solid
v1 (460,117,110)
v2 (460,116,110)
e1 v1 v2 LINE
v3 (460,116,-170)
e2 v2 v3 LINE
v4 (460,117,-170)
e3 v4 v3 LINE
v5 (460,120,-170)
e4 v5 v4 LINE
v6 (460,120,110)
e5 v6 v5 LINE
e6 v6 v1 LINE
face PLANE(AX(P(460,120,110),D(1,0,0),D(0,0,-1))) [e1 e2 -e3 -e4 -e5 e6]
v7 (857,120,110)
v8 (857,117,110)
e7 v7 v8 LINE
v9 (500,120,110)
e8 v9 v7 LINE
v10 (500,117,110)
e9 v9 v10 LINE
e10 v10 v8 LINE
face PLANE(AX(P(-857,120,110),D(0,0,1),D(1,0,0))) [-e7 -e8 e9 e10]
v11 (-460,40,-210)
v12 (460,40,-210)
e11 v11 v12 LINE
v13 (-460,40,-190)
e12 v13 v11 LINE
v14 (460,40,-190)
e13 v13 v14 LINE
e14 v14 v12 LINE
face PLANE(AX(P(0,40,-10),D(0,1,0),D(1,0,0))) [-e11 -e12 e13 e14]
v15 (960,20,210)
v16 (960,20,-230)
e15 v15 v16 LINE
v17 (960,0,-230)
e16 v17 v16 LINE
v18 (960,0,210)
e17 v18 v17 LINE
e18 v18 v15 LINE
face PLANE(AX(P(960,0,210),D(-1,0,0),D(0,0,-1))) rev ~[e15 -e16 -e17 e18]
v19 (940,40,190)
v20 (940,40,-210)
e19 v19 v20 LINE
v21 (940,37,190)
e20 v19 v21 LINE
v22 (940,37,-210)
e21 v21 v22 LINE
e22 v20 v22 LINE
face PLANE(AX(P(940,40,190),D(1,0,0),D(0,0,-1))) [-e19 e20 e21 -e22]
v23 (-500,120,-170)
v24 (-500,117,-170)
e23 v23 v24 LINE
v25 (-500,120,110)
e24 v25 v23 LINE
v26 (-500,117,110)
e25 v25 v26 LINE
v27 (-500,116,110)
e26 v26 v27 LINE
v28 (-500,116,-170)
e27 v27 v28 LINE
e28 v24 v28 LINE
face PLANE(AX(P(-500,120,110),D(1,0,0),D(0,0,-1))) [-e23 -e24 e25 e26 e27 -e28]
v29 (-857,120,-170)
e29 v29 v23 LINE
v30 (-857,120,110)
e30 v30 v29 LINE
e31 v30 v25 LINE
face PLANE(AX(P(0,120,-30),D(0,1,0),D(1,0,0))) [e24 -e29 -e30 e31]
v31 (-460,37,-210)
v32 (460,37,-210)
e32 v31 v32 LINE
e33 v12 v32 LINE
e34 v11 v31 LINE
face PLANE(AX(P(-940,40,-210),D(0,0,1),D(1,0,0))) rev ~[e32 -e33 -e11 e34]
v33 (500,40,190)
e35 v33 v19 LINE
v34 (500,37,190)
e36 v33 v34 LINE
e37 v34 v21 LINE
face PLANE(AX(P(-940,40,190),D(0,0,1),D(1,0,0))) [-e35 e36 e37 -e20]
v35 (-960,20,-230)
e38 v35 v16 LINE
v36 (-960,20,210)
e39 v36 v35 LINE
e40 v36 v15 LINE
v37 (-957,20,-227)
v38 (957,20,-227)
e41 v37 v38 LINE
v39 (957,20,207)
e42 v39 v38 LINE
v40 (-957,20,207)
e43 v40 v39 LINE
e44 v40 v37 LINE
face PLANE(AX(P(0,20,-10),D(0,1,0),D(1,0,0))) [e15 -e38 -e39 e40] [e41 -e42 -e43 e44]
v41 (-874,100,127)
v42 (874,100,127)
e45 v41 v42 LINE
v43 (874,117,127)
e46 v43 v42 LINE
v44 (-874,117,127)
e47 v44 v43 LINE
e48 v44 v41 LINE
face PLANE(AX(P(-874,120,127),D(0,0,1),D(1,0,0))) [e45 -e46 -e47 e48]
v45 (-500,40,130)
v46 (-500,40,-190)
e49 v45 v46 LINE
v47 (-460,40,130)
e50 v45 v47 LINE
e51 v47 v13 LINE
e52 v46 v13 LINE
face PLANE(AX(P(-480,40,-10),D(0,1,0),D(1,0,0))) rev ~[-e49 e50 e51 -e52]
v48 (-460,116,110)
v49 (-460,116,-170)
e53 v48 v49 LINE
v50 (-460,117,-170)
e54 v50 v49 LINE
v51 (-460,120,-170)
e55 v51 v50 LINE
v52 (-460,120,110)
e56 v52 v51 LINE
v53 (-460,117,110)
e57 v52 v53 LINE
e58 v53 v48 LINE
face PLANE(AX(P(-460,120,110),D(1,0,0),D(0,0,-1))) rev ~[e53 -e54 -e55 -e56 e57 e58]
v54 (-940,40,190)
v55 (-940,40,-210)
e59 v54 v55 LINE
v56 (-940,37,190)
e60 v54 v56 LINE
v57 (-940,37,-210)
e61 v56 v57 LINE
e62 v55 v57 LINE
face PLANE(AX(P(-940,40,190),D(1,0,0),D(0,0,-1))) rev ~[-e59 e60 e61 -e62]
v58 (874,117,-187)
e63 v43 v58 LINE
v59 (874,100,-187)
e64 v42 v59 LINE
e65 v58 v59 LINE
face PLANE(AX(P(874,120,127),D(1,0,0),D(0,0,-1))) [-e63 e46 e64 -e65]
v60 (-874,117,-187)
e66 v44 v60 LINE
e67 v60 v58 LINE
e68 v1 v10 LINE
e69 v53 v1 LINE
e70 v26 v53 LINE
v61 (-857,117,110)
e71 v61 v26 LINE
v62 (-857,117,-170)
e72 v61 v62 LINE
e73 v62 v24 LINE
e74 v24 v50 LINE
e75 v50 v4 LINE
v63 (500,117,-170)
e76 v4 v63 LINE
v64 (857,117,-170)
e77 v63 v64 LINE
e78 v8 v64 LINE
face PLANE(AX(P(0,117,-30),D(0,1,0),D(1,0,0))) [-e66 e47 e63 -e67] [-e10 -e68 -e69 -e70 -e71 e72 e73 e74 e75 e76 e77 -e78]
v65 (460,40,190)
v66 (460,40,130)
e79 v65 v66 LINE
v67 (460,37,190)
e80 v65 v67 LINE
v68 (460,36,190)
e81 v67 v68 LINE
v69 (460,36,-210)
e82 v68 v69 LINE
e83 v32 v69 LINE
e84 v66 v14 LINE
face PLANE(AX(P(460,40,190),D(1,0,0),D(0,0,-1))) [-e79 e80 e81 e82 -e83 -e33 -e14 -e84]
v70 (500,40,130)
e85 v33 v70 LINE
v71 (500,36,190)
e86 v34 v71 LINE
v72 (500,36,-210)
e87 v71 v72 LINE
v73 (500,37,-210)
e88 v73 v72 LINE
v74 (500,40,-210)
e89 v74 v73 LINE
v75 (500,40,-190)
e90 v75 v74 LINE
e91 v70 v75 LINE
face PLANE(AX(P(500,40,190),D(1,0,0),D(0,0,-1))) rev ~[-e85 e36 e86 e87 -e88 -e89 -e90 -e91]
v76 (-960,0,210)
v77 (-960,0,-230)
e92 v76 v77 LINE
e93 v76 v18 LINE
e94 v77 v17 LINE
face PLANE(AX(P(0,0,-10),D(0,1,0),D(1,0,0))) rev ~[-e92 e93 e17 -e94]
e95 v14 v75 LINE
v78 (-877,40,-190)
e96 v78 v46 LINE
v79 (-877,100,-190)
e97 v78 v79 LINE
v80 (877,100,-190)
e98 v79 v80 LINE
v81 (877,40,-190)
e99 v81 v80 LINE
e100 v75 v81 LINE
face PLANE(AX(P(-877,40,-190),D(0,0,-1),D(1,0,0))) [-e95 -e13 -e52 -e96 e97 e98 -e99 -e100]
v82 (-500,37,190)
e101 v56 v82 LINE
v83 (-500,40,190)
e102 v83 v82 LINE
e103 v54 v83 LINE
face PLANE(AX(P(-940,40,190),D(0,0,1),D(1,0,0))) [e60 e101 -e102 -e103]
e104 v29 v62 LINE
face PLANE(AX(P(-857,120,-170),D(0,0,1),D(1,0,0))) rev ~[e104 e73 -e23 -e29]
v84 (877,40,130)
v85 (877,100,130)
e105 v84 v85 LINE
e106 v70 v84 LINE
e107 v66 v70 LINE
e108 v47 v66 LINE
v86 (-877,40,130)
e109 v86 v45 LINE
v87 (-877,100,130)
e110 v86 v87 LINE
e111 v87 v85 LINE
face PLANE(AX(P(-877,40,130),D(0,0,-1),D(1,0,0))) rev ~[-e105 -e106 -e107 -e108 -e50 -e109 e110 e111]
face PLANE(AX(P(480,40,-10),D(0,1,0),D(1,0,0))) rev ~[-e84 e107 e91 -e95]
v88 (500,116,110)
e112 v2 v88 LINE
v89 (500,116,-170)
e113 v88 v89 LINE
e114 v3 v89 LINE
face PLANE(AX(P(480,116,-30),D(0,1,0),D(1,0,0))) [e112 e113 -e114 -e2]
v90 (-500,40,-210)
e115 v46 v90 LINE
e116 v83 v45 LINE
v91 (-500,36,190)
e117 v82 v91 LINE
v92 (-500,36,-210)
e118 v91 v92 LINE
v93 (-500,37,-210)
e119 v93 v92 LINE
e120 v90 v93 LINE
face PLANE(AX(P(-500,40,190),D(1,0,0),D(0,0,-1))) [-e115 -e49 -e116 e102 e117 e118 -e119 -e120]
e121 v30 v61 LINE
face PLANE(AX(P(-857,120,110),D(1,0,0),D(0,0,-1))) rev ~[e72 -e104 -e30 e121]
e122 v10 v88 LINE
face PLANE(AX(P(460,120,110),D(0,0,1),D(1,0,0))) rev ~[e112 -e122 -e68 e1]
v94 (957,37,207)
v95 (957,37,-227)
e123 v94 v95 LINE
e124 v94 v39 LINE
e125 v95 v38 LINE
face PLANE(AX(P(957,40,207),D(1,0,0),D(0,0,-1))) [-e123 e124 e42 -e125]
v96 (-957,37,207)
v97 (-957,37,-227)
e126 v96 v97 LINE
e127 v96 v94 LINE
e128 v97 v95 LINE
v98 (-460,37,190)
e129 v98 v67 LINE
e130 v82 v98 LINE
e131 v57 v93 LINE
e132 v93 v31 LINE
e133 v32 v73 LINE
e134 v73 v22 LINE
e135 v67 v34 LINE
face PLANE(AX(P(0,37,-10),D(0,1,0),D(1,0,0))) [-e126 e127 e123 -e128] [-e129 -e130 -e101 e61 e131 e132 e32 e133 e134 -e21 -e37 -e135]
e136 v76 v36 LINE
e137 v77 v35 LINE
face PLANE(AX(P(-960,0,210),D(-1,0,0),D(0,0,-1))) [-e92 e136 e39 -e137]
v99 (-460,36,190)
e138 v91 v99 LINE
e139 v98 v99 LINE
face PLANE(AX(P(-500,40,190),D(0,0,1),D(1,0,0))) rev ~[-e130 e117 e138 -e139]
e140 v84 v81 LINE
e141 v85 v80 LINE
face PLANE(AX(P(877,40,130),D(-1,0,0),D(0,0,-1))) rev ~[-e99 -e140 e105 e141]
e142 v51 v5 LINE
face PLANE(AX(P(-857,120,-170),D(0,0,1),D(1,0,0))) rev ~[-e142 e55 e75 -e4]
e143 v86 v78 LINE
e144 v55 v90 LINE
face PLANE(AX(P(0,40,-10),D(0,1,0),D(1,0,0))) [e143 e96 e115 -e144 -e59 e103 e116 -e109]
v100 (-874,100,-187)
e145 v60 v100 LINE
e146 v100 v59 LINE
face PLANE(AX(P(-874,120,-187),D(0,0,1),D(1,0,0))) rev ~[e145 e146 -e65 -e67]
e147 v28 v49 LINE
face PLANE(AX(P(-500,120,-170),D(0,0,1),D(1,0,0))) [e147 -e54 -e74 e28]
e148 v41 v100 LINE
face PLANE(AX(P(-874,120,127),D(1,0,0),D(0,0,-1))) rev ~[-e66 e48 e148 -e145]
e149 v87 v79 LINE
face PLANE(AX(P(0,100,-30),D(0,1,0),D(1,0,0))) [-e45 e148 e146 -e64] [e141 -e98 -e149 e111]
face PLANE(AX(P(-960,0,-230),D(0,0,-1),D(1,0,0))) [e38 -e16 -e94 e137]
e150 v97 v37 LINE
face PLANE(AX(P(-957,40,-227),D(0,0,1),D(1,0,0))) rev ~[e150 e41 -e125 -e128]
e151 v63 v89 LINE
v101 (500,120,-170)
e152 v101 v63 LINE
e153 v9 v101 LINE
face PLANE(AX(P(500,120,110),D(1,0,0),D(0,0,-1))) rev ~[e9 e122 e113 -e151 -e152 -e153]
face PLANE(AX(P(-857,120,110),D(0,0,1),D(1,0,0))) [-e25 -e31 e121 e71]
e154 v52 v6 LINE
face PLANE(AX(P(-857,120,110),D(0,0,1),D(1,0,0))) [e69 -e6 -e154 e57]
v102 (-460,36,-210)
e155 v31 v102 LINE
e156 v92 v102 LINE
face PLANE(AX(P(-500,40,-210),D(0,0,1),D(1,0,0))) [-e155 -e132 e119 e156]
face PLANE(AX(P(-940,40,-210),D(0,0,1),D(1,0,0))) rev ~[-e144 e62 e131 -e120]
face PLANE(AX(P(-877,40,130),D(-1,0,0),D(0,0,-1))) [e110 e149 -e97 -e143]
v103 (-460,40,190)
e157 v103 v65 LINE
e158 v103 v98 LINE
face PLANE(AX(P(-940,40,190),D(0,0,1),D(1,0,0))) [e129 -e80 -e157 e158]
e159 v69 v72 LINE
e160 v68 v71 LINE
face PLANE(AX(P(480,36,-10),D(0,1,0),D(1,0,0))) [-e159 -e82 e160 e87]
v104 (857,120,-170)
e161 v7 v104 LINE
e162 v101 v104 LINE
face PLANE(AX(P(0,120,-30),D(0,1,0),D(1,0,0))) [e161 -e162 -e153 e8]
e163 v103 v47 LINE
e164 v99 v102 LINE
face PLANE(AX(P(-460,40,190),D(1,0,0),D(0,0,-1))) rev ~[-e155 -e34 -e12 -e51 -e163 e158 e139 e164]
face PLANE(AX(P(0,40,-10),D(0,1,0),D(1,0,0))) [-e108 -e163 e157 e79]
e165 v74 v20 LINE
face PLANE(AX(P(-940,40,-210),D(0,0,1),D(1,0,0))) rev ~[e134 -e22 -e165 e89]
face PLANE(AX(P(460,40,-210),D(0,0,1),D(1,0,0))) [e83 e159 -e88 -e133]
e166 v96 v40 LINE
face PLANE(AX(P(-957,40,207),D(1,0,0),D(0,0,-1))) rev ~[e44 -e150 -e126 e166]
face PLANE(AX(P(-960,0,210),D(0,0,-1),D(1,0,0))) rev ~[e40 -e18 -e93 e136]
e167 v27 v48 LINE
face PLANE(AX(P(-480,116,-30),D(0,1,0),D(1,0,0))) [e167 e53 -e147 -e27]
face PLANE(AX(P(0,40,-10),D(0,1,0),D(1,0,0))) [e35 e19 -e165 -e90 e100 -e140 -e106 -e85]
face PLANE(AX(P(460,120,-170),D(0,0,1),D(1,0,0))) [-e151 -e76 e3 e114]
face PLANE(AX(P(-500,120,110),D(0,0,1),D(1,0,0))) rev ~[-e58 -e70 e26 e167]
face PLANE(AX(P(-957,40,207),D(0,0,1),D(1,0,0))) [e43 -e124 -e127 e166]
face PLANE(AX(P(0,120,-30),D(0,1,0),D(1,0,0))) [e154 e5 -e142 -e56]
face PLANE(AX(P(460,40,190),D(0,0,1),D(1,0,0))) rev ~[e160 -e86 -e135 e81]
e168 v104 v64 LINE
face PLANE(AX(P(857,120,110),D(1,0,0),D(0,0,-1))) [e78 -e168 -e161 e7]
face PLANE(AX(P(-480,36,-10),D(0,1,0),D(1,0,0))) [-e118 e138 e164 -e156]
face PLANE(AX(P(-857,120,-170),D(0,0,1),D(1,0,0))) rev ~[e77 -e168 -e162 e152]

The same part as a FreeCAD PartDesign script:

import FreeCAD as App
import Part
import Sketcher


def add_polygon(sketch, points):
    """Adds a closed chain of lines whose ends are joined by coincident constraints."""
    first, n = sketch.GeometryCount, len(points)
    for a, b in zip(points, points[1:] + points[:1]):
        sketch.addGeometry(Part.LineSegment(App.Vector(*a, 0), App.Vector(*b, 0)), False)
    for i in range(n):
        sketch.addConstraint(Sketcher.Constraint("Coincident", first + i, 2, first + (i + 1) % n, 1))

doc = App.newDocument("Part")
params = doc.addObject("Spreadsheet::Sheet", "Params")
for row, (alias, value) in enumerate([
    ("sketch1_width", "1920 mm"),
    ("sketch1_height", "440 mm"),
    ("pad1_length", "40 mm"),
    ("sketch2_width", "1754 mm"),
    ("sketch2_height", "320 mm"),
    ("pad2_length", "80 mm"),
    ("sketch3_width", "1754 mm"),
    ("sketch3_width2", "1714 mm"),
    ("sketch3_height", "320 mm"),
    ("sketch3_height2", "280 mm"),
    ("pocket1_length", "3 mm"),
    ("sketch4_width", "1754 mm"),
    ("sketch4_width2", "1748 mm"),
    ("sketch4_height", "320 mm"),
    ("sketch4_height2", "314 mm"),
    ("pocket2_length", "20 mm"),
    ("sketch5_width", "40 mm"),
    ("sketch5_height", "280 mm"),
    ("pocket3_length", "4 mm"),
    ("sketch6_width", "1920 mm"),
    ("sketch6_width2", "1880 mm"),
    ("sketch6_height", "440 mm"),
    ("sketch6_height2", "400 mm"),
    ("pocket4_length", "3 mm"),
    ("sketch7_width", "1920 mm"),
    ("sketch7_width2", "1914 mm"),
    ("sketch7_height", "440 mm"),
    ("sketch7_height2", "434 mm"),
    ("pocket5_length", "20 mm"),
    ("sketch8_width", "40 mm"),
    ("sketch8_height", "400 mm"),
    ("pocket6_length", "4 mm"),
], start=1):
    params.set(f"A{row}", alias)
    params.set(f"B{row}", "=" + value)
    params.setAlias(f"B{row}", alias)

body = doc.addObject("PartDesign::Body", "Body")

# Sketch on XZ plane
sketch1 = body.newObject("Sketcher::SketchObject", "Sketch")
sketch1.AttachmentSupport = (doc.getObject("XZ_Plane"), [""])
sketch1.MapMode = "FlatFace"
add_polygon(sketch1, [(-960, -230), (-960, 210), (960, 210), (960, -230)])  # lines 0-3
sketch1.addConstraint([
    Sketcher.Constraint("Vertical", 0),
    Sketcher.Constraint("Horizontal", 1),
    Sketcher.Constraint("Vertical", 2),
    Sketcher.Constraint("Horizontal", 3),
    Sketcher.Constraint("DistanceX", 1, 1, 1, 2, 1920.0),
    Sketcher.Constraint("DistanceY", 0, 1, 0, 2, 440.0),
    Sketcher.Constraint("DistanceX", 0, 2, -1, 1, 960.0),
    Sketcher.Constraint("DistanceY", -1, 1, 0, 2, 210.0),
])
sketch1.setExpression("Constraints[8]", "Params.sketch1_width")
sketch1.setExpression("Constraints[9]", "Params.sketch1_height")
pad1 = body.newObject("PartDesign::Pad", "Pad")
pad1.Profile = sketch1
pad1.setExpression("Length", "Params.pad1_length")
pad1.Reversed = True

# Sketch on XZ plane
sketch2 = body.newObject("Sketcher::SketchObject", "Sketch001")
sketch2.AttachmentSupport = (doc.getObject("XZ_Plane"), [""])
sketch2.MapMode = "FlatFace"
sketch2.AttachmentOffset = App.Placement(App.Vector(0, 0, -40), App.Rotation())
add_polygon(sketch2, [(-877, -190), (-877, 130), (877, 130), (877, -190)])  # lines 0-3
sketch2.addConstraint([
    Sketcher.Constraint("Vertical", 0),
    Sketcher.Constraint("Horizontal", 1),
    Sketcher.Constraint("Vertical", 2),
    Sketcher.Constraint("Horizontal", 3),
    Sketcher.Constraint("DistanceX", 1, 1, 1, 2, 1754.0),
    Sketcher.Constraint("DistanceY", 0, 1, 0, 2, 320.0),
    Sketcher.Constraint("DistanceX", 0, 2, -1, 1, 877.0),
    Sketcher.Constraint("DistanceY", -1, 1, 0, 2, 130.0),
])
sketch2.setExpression("Constraints[8]", "Params.sketch2_width")
sketch2.setExpression("Constraints[9]", "Params.sketch2_height")
pad2 = body.newObject("PartDesign::Pad", "Pad001")
pad2.Profile = sketch2
pad2.setExpression("Length", "Params.pad2_length")
pad2.Reversed = True

# Sketch on XZ plane
sketch3 = body.newObject("Sketcher::SketchObject", "Sketch002")
sketch3.AttachmentSupport = (doc.getObject("XZ_Plane"), [""])
sketch3.MapMode = "FlatFace"
sketch3.AttachmentOffset = App.Placement(App.Vector(0, 0, -120), App.Rotation())
add_polygon(sketch3, [(-877, -190), (-877, 130), (877, 130), (877, -190)])  # lines 0-3
add_polygon(sketch3, [(857, 110), (-857, 110), (-857, -170), (857, -170)])  # lines 4-7
sketch3.addConstraint([
    Sketcher.Constraint("Vertical", 0),
    Sketcher.Constraint("Horizontal", 1),
    Sketcher.Constraint("Vertical", 2),
    Sketcher.Constraint("Horizontal", 3),
    Sketcher.Constraint("Horizontal", 4),
    Sketcher.Constraint("Vertical", 5),
    Sketcher.Constraint("Horizontal", 6),
    Sketcher.Constraint("Vertical", 7),
    Sketcher.Constraint("DistanceX", 1, 1, 1, 2, 1754.0),
    Sketcher.Constraint("DistanceX", 4, 2, 4, 1, 1714.0),
    Sketcher.Constraint("DistanceY", 0, 1, 0, 2, 320.0),
    Sketcher.Constraint("DistanceY", 5, 2, 5, 1, 280.0),
    Sketcher.Constraint("DistanceX", 0, 2, -1, 1, 877.0),
    Sketcher.Constraint("DistanceY", -1, 1, 0, 2, 130.0),
    Sketcher.Constraint("DistanceX", 4, 2, -1, 1, 857.0),
    Sketcher.Constraint("DistanceY", -1, 1, 4, 2, 110.0),
])
sketch3.setExpression("Constraints[16]", "Params.sketch3_width")
sketch3.setExpression("Constraints[17]", "Params.sketch3_width2")
sketch3.setExpression("Constraints[18]", "Params.sketch3_height")
sketch3.setExpression("Constraints[19]", "Params.sketch3_height2")
pocket1 = body.newObject("PartDesign::Pocket", "Pocket")
pocket1.Profile = sketch3
pocket1.setExpression("Length", "Params.pocket1_length")
pocket1.Reversed = True

# Sketch on XZ plane
sketch4 = body.newObject("Sketcher::SketchObject", "Sketch003")
sketch4.AttachmentSupport = (doc.getObject("XZ_Plane"), [""])
sketch4.MapMode = "FlatFace"
sketch4.AttachmentOffset = App.Placement(App.Vector(0, 0, -120), App.Rotation())
add_polygon(sketch4, [(-877, -190), (-877, 130), (877, 130), (877, -190)])  # lines 0-3
add_polygon(sketch4, [(874, 127), (-874, 127), (-874, -187), (874, -187)])  # lines 4-7
sketch4.addConstraint([
    Sketcher.Constraint("Vertical", 0),
    Sketcher.Constraint("Horizontal", 1),
    Sketcher.Constraint("Vertical", 2),
    Sketcher.Constraint("Horizontal", 3),
    Sketcher.Constraint("Horizontal", 4),
    Sketcher.Constraint("Vertical", 5),
    Sketcher.Constraint("Horizontal", 6),
    Sketcher.Constraint("Vertical", 7),
    Sketcher.Constraint("DistanceX", 1, 1, 1, 2, 1754.0),
    Sketcher.Constraint("DistanceX", 4, 2, 4, 1, 1748.0),
    Sketcher.Constraint("DistanceY", 0, 1, 0, 2, 320.0),
    Sketcher.Constraint("DistanceY", 5, 2, 5, 1, 314.0),
    Sketcher.Constraint("DistanceX", 0, 2, -1, 1, 877.0),
    Sketcher.Constraint("DistanceY", -1, 1, 0, 2, 130.0),
    Sketcher.Constraint("DistanceX", 4, 2, -1, 1, 874.0),
    Sketcher.Constraint("DistanceY", -1, 1, 4, 2, 127.0),
])
sketch4.setExpression("Constraints[16]", "Params.sketch4_width")
sketch4.setExpression("Constraints[17]", "Params.sketch4_width2")
sketch4.setExpression("Constraints[18]", "Params.sketch4_height")
sketch4.setExpression("Constraints[19]", "Params.sketch4_height2")
pocket2 = body.newObject("PartDesign::Pocket", "Pocket001")
pocket2.Profile = sketch4
pocket2.setExpression("Length", "Params.pocket2_length")
pocket2.Reversed = True

# Sketch on XZ plane
sketch5 = body.newObject("Sketcher::SketchObject", "Sketch004")
sketch5.AttachmentSupport = (doc.getObject("XZ_Plane"), [""])
sketch5.MapMode = "FlatFace"
sketch5.AttachmentOffset = App.Placement(App.Vector(0, 0, -120), App.Rotation())
add_polygon(sketch5, [(460, -170), (460, 110), (500, 110), (500, -170)])  # lines 0-3
add_polygon(sketch5, [(-500, -170), (-500, 110), (-460, 110), (-460, -170)])  # lines 4-7
sketch5.addConstraint([
    Sketcher.Constraint("Vertical", 0),
    Sketcher.Constraint("Horizontal", 1),
    Sketcher.Constraint("Vertical", 2),
    Sketcher.Constraint("Horizontal", 3),
    Sketcher.Constraint("Vertical", 4),
    Sketcher.Constraint("Horizontal", 5),
    Sketcher.Constraint("Vertical", 6),
    Sketcher.Constraint("Horizontal", 7),
    Sketcher.Constraint("Symmetric", 1, 2, 4, 2, -2),
    Sketcher.Constraint("Symmetric", 3, 2, 6, 2, -2),
    Sketcher.Constraint("DistanceX", 1, 1, 1, 2, 40.0),
    Sketcher.Constraint("DistanceY", 0, 1, 0, 2, 280.0),
    Sketcher.Constraint("DistanceX", -1, 1, 0, 2, 460.0),
    Sketcher.Constraint("DistanceY", -1, 1, 0, 2, 110.0),
])
sketch5.setExpression("Constraints[18]", "Params.sketch5_width")
sketch5.setExpression("Constraints[19]", "Params.sketch5_height")
pocket3 = body.newObject("PartDesign::Pocket", "Pocket002")
pocket3.Profile = sketch5
pocket3.setExpression("Length", "Params.pocket3_length")
pocket3.Reversed = True

# Sketch on XZ plane
sketch6 = body.newObject("Sketcher::SketchObject", "Sketch005")
sketch6.AttachmentSupport = (doc.getObject("XZ_Plane"), [""])
sketch6.MapMode = "FlatFace"
sketch6.AttachmentOffset = App.Placement(App.Vector(0, 0, -40), App.Rotation())
add_polygon(sketch6, [(-960, -230), (-960, 210), (960, 210), (960, -230)])  # lines 0-3
add_polygon(sketch6, [(940, 190), (-940, 190), (-940, -210), (940, -210)])  # lines 4-7
sketch6.addConstraint([
    Sketcher.Constraint("Vertical", 0),
    Sketcher.Constraint("Horizontal", 1),
    Sketcher.Constraint("Vertical", 2),
    Sketcher.Constraint("Horizontal", 3),
    Sketcher.Constraint("Horizontal", 4),
    Sketcher.Constraint("Vertical", 5),
    Sketcher.Constraint("Horizontal", 6),
    Sketcher.Constraint("Vertical", 7),
    Sketcher.Constraint("DistanceX", 1, 1, 1, 2, 1920.0),
    Sketcher.Constraint("DistanceX", 4, 2, 4, 1, 1880.0),
    Sketcher.Constraint("DistanceY", 0, 1, 0, 2, 440.0),
    Sketcher.Constraint("DistanceY", 5, 2, 5, 1, 400.0),
    Sketcher.Constraint("DistanceX", 0, 2, -1, 1, 960.0),
    Sketcher.Constraint("DistanceY", -1, 1, 0, 2, 210.0),
    Sketcher.Constraint("DistanceX", 4, 2, -1, 1, 940.0),
    Sketcher.Constraint("DistanceY", -1, 1, 4, 2, 190.0),
])
sketch6.setExpression("Constraints[16]", "Params.sketch6_width")
sketch6.setExpression("Constraints[17]", "Params.sketch6_width2")
sketch6.setExpression("Constraints[18]", "Params.sketch6_height")
sketch6.setExpression("Constraints[19]", "Params.sketch6_height2")
pocket4 = body.newObject("PartDesign::Pocket", "Pocket003")
pocket4.Profile = sketch6
pocket4.setExpression("Length", "Params.pocket4_length")
pocket4.Reversed = True

# Sketch on XZ plane
sketch7 = body.newObject("Sketcher::SketchObject", "Sketch006")
sketch7.AttachmentSupport = (doc.getObject("XZ_Plane"), [""])
sketch7.MapMode = "FlatFace"
sketch7.AttachmentOffset = App.Placement(App.Vector(0, 0, -40), App.Rotation())
add_polygon(sketch7, [(-960, -230), (-960, 210), (960, 210), (960, -230)])  # lines 0-3
add_polygon(sketch7, [(957, 207), (-957, 207), (-957, -227), (957, -227)])  # lines 4-7
sketch7.addConstraint([
    Sketcher.Constraint("Vertical", 0),
    Sketcher.Constraint("Horizontal", 1),
    Sketcher.Constraint("Vertical", 2),
    Sketcher.Constraint("Horizontal", 3),
    Sketcher.Constraint("Horizontal", 4),
    Sketcher.Constraint("Vertical", 5),
    Sketcher.Constraint("Horizontal", 6),
    Sketcher.Constraint("Vertical", 7),
    Sketcher.Constraint("DistanceX", 1, 1, 1, 2, 1920.0),
    Sketcher.Constraint("DistanceX", 4, 2, 4, 1, 1914.0),
    Sketcher.Constraint("DistanceY", 0, 1, 0, 2, 440.0),
    Sketcher.Constraint("DistanceY", 5, 2, 5, 1, 434.0),
    Sketcher.Constraint("DistanceX", 0, 2, -1, 1, 960.0),
    Sketcher.Constraint("DistanceY", -1, 1, 0, 2, 210.0),
    Sketcher.Constraint("DistanceX", 4, 2, -1, 1, 957.0),
    Sketcher.Constraint("DistanceY", -1, 1, 4, 2, 207.0),
])
sketch7.setExpression("Constraints[16]", "Params.sketch7_width")
sketch7.setExpression("Constraints[17]", "Params.sketch7_width2")
sketch7.setExpression("Constraints[18]", "Params.sketch7_height")
sketch7.setExpression("Constraints[19]", "Params.sketch7_height2")
pocket5 = body.newObject("PartDesign::Pocket", "Pocket004")
pocket5.Profile = sketch7
pocket5.setExpression("Length", "Params.pocket5_length")
pocket5.Reversed = True

# Sketch on XZ plane
sketch8 = body.newObject("Sketcher::SketchObject", "Sketch007")
sketch8.AttachmentSupport = (doc.getObject("XZ_Plane"), [""])
sketch8.MapMode = "FlatFace"
sketch8.AttachmentOffset = App.Placement(App.Vector(0, 0, -40), App.Rotation())
add_polygon(sketch8, [(-500, -210), (-500, 190), (-460, 190), (-460, -210)])  # lines 0-3
add_polygon(sketch8, [(460, -210), (460, 190), (500, 190), (500, -210)])  # lines 4-7
sketch8.addConstraint([
    Sketcher.Constraint("Vertical", 0),
    Sketcher.Constraint("Horizontal", 1),
    Sketcher.Constraint("Vertical", 2),
    Sketcher.Constraint("Horizontal", 3),
    Sketcher.Constraint("Vertical", 4),
    Sketcher.Constraint("Horizontal", 5),
    Sketcher.Constraint("Vertical", 6),
    Sketcher.Constraint("Horizontal", 7),
    Sketcher.Constraint("Symmetric", 1, 2, 4, 2, -2),
    Sketcher.Constraint("Symmetric", 3, 2, 6, 2, -2),
    Sketcher.Constraint("DistanceX", 1, 1, 1, 2, 40.0),
    Sketcher.Constraint("DistanceY", 0, 1, 0, 2, 400.0),
    Sketcher.Constraint("DistanceX", 0, 2, -1, 1, 500.0),
    Sketcher.Constraint("DistanceY", -1, 1, 0, 2, 190.0),
])
sketch8.setExpression("Constraints[18]", "Params.sketch8_width")
sketch8.setExpression("Constraints[19]", "Params.sketch8_height")
pocket6 = body.newObject("PartDesign::Pocket", "Pocket005")
pocket6.Profile = sketch8
pocket6.setExpression("Length", "Params.pocket6_length")
pocket6.Reversed = True

doc.recompute()
